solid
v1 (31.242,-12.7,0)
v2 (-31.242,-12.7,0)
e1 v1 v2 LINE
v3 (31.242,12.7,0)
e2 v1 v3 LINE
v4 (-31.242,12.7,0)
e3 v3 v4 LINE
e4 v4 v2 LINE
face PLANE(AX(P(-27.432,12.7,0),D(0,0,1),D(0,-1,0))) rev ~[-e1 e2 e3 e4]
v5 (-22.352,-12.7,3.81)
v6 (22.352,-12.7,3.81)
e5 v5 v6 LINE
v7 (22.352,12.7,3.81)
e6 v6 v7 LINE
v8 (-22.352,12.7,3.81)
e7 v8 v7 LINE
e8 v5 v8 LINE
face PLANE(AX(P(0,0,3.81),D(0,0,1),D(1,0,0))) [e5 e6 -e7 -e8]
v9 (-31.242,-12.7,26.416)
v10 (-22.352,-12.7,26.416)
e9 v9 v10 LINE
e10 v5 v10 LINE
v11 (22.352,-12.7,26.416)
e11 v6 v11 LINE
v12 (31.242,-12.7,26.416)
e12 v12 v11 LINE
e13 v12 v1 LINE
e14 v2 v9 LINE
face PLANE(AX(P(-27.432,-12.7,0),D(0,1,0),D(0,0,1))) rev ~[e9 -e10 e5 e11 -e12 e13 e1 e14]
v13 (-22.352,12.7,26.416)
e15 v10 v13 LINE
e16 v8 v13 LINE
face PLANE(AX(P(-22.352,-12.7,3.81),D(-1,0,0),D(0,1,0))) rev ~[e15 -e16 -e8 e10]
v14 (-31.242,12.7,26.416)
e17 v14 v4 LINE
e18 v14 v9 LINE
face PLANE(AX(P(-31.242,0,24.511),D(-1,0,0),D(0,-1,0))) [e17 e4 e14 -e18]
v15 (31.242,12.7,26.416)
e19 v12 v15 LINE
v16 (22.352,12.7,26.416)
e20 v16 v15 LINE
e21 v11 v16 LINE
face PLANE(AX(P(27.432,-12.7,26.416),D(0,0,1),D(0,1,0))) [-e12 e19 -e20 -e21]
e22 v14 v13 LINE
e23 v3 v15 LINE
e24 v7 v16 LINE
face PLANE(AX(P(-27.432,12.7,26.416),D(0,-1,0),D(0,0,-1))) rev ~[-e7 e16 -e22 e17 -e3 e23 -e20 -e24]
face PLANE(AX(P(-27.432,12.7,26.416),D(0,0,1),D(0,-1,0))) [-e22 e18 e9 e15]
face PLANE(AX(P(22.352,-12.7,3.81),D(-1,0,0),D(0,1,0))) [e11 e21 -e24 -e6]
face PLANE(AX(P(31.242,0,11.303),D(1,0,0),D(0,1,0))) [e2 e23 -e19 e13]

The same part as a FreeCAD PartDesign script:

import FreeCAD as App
import Part
import Sketcher

V = App.Vector
Q = App.Units.Quantity


def add_polygon(sketch, points):
    """Adds a closed chain of lines whose ends are joined by coincident constraints."""
    first, n = sketch.GeometryCount, len(points)
    for a, b in zip(points, points[1:] + points[:1]):
        sketch.addGeometry(Part.LineSegment(App.Vector(*a, 0), App.Vector(*b, 0)), False)
    for i in range(n):
        sketch.addConstraint(Sketcher.Constraint("Coincident", first + i, 2, first + (i + 1) % n, 1))

doc = App.newDocument("Part")
body = doc.addObject("PartDesign::Body", "Body")

# Sketch on XY plane
sketch1 = body.newObject("Sketcher::SketchObject", "Sketch")
sketch1.AttachmentSupport = (doc.getObject("XY_Plane"), [""])
sketch1.MapMode = "FlatFace"
add_polygon(sketch1, [(-27.432, 12.7), (-27.432, -12.7), (27.432, -12.7), (27.432, 12.7)])  # lines 0-3
sketch1.addConstraint(Sketcher.Constraint("Vertical", 0))
sketch1.addConstraint(Sketcher.Constraint("Horizontal", 1))
sketch1.addConstraint(Sketcher.Constraint("Vertical", 2))
sketch1.addConstraint(Sketcher.Constraint("Horizontal", 3))
sketch1.addConstraint(Sketcher.Constraint("Symmetric", 0, 2, 2, 2, -1, 1))
sketch1.addConstraint(Sketcher.Constraint("DistanceY", 0, 2, 0, 1, Q("1 in")))
sketch1.addConstraint(Sketcher.Constraint("DistanceX", 1, 1, 1, 2, Q("2.16 in")))
pad1 = body.newObject("PartDesign::Pad", "Pad")
pad1.Profile = sketch1
pad1.Length = Q("0.15 in")

# Sketch on XY plane
sketch2 = body.newObject("Sketcher::SketchObject", "Sketch001")
sketch2.AttachmentSupport = (doc.getObject("XY_Plane"), [""])
sketch2.MapMode = "FlatFace"
sketch2.AttachmentOffset = App.Placement(V(0, 0, 0.15 * 25.4), App.Rotation())
add_polygon(sketch2, [(-27.432, 12.7), (-27.432, -12.7), (-22.352, -12.7), (-22.352, 12.7)])  # lines 0-3
add_polygon(sketch2, [(22.352, 12.7), (22.352, -12.7), (27.432, -12.7), (27.432, 12.7)])  # lines 4-7
sketch2.addConstraint(Sketcher.Constraint("Vertical", 0))
sketch2.addConstraint(Sketcher.Constraint("Horizontal", 1))
sketch2.addConstraint(Sketcher.Constraint("Vertical", 2))
sketch2.addConstraint(Sketcher.Constraint("Horizontal", 3))
sketch2.addConstraint(Sketcher.Constraint("Vertical", 4))
sketch2.addConstraint(Sketcher.Constraint("Horizontal", 5))
sketch2.addConstraint(Sketcher.Constraint("Vertical", 6))
sketch2.addConstraint(Sketcher.Constraint("Horizontal", 7))
sketch2.addConstraint(Sketcher.Constraint("Symmetric", 2, 2, 4, 2, -1, 1))
sketch2.addConstraint(Sketcher.Constraint("Symmetric", 0, 2, 6, 2, -1, 1))
sketch2.addConstraint(Sketcher.Constraint("Horizontal", 1, 2, 4, 2))
sketch2.addConstraint(Sketcher.Constraint("DistanceY", 0, 2, 0, 1, Q("1 in")))
sketch2.addConstraint(Sketcher.Constraint("DistanceX", 1, 1, 1, 2, Q("0.2 in")))
sketch2.addConstraint(Sketcher.Constraint("DistanceX", 0, 2, -1, 1, Q("1.08 in")))
pad2 = body.newObject("PartDesign::Pad", "Pad001")
pad2.Profile = sketch2
pad2.Length = Q("0.89 in")

# Sketch on YZ plane
sketch3 = body.newObject("Sketcher::SketchObject", "Sketch002")
sketch3.AttachmentSupport = (doc.getObject("YZ_Plane"), [""])
sketch3.MapMode = "FlatFace"
sketch3.AttachmentOffset = App.Placement(V(0, 0, 1.08 * 25.4), App.Rotation())
add_polygon(sketch3, [(-12.7, 0), (12.7, 0), (12.7, 26.416), (-12.7, 26.416)])  # lines 0-3
sketch3.addConstraint(Sketcher.Constraint("Horizontal", 0))
sketch3.addConstraint(Sketcher.Constraint("Vertical", 1))
sketch3.addConstraint(Sketcher.Constraint("Horizontal", 2))
sketch3.addConstraint(Sketcher.Constraint("Vertical", 3))
sketch3.addConstraint(Sketcher.Constraint("Symmetric", 0, 2, 3, 2, -1, 1))
sketch3.addConstraint(Sketcher.Constraint("DistanceX", 0, 1, 0, 2, Q("1 in")))
sketch3.addConstraint(Sketcher.Constraint("DistanceY", 1, 1, 1, 2, Q("1.04 in")))
pad3 = body.newObject("PartDesign::Pad", "Pad002")
pad3.Profile = sketch3
pad3.Length = Q("0.15 in")

# Sketch on YZ plane
sketch4 = body.newObject("Sketcher::SketchObject", "Sketch003")
sketch4.AttachmentSupport = (doc.getObject("YZ_Plane"), [""])
sketch4.MapMode = "FlatFace"
sketch4.AttachmentOffset = App.Placement(V(0, 0, -1.08 * 25.4), App.Rotation())
add_polygon(sketch4, [(12.7, 26.416), (12.7, 0), (-12.7, 0), (-12.7, 26.416)])  # lines 0-3
sketch4.addConstraint(Sketcher.Constraint("Vertical", 0))
sketch4.addConstraint(Sketcher.Constraint("Horizontal", 1))
sketch4.addConstraint(Sketcher.Constraint("Vertical", 2))
sketch4.addConstraint(Sketcher.Constraint("Horizontal", 3))
sketch4.addConstraint(Sketcher.Constraint("Symmetric", 0, 2, 1, 2, -1, 1))
sketch4.addConstraint(Sketcher.Constraint("DistanceX", 1, 2, 1, 1, Q("1 in")))
sketch4.addConstraint(Sketcher.Constraint("DistanceY", 0, 2, 0, 1, Q("1.04 in")))
pad4 = body.newObject("PartDesign::Pad", "Pad003")
pad4.Profile = sketch4
pad4.Length = Q("0.15 in")
pad4.Reversed = True

doc.recompute()
